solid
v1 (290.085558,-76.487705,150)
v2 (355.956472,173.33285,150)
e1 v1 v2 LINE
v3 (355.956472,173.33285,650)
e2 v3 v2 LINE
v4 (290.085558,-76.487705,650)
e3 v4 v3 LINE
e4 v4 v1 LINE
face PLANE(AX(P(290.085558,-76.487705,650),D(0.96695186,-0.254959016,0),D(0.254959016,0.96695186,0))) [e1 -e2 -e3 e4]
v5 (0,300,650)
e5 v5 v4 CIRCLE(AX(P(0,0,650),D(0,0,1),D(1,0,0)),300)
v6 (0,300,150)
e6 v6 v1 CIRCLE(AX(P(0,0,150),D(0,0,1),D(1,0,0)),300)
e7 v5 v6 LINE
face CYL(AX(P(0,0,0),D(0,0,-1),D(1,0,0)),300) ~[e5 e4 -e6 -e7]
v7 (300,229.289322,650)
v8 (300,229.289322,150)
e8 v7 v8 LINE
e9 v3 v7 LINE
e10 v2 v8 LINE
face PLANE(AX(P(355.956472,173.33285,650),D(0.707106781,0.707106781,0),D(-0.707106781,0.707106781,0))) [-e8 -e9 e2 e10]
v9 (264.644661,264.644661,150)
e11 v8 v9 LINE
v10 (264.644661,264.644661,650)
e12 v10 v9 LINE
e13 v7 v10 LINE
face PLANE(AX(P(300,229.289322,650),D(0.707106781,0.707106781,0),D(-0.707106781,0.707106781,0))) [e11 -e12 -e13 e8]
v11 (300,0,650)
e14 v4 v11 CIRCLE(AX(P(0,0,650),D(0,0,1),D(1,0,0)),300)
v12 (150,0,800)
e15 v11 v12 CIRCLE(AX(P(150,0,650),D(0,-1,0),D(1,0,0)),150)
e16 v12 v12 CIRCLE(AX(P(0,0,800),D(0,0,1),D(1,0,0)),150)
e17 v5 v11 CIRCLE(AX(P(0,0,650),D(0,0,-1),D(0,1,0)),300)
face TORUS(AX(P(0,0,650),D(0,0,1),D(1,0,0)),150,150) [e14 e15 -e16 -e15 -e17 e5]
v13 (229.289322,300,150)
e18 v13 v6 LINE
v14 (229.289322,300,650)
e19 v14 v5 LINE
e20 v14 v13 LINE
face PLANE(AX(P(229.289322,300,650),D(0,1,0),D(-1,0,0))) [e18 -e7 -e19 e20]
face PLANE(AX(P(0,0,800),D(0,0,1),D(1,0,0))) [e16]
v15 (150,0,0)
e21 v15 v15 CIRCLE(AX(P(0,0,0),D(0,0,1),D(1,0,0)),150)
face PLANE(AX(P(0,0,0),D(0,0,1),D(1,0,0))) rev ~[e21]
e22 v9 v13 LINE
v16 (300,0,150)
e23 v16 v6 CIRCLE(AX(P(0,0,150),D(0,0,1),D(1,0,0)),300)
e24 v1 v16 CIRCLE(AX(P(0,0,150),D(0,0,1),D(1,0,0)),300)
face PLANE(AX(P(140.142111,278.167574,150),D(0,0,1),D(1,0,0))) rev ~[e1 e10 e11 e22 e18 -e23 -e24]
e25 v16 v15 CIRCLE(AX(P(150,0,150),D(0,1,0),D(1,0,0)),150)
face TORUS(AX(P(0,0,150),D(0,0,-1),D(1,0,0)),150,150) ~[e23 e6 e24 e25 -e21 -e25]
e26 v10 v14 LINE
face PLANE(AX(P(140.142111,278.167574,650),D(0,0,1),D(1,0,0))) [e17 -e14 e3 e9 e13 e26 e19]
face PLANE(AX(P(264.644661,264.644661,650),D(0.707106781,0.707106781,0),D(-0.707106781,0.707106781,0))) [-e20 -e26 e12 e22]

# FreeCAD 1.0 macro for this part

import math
import FreeCAD as App
import Part
import Sketcher

V = App.Vector
Q = App.Units.Quantity


def edges_at(feature, points):
    """Names of the edges that pass closest to the given points."""
    edges = feature.Shape.Edges
    near = lambda p: min(range(len(edges)), key=lambda i: edges[i].distToShape(Part.Vertex(*p))[0])
    return sorted({f"Edge{near(p) + 1}" for p in points})

doc = App.newDocument("Part")
body = doc.addObject("PartDesign::Body", "Body")

# Sketch on XY plane
sketch1 = body.newObject("Sketcher::SketchObject", "Sketch")
sketch1.AttachmentSupport = (doc.getObject("XY_Plane"), [""])
sketch1.MapMode = "FlatFace"
sketch1.addGeometry(Part.Circle(V(0, 0, 0), V(0, 0, 1), 300), False)
sketch1.addConstraint([
    Sketcher.Constraint("Coincident", 0, 3, -1, 1),
    Sketcher.Constraint("Diameter", 0, Q("600 mm")),
])
pad1 = body.newObject("PartDesign::Pad", "Pad")
pad1.Profile = sketch1
pad1.Length = 800
doc.recompute()

fillet = body.newObject("PartDesign::Fillet", "Fillet")
fillet.Base = (pad1, edges_at(pad1, [(-300, 0, 800), (-300, 0, 0)]))
fillet.Radius = 150

# Sketch on XY plane
sketch2 = body.newObject("Sketcher::SketchObject", "Sketch001")
sketch2.AttachmentSupport = (doc.getObject("XY_Plane"), [""])
sketch2.MapMode = "FlatFace"
sketch2.AttachmentOffset = App.Placement(V(0, 0, 650), App.Rotation())
sketch2.addGeometry([
    Part.LineSegment(V(229, 300, 0), V(0, 300, 0)),  # 0
    Part.ArcOfCircle(Part.Circle(V(0, 0, 0), V(0, 0, 1), 300), math.radians(45), math.radians(90)),  # 1
    Part.ArcOfCircle(Part.Circle(V(0, 0, 0), V(0, 0, 1), 300), math.radians(-15), math.radians(45)),  # 2
    Part.LineSegment(V(290, -76, 0), V(356, 173, 0)),  # 3
    Part.LineSegment(V(356, 173, 0), V(300, 229, 0)),  # 4
    Part.LineSegment(V(300, 229, 0), V(265, 265, 0)),  # 5
    Part.LineSegment(V(265, 265, 0), V(229, 300, 0)),  # 6
], False)
sketch2.addConstraint([
    Sketcher.Constraint("Tangent", 0, 2, 1, 2),
    Sketcher.Constraint("Tangent", 1, 1, 2, 2),
    Sketcher.Constraint("Tangent", 2, 1, 3, 1),
    Sketcher.Constraint("Coincident", 3, 2, 4, 1),
    Sketcher.Constraint("Coincident", 4, 2, 5, 1),
    Sketcher.Constraint("Coincident", 5, 2, 6, 1),
    Sketcher.Constraint("Coincident", 6, 2, 0, 1),
    Sketcher.Constraint("Horizontal", 0),
    Sketcher.Constraint("Coincident", 1, 3, -1, 1),
    Sketcher.Constraint("Equal", 1, 2),
    Sketcher.Constraint("Parallel", 4, 5),
    Sketcher.Constraint("Parallel", 5, 6),
    Sketcher.Constraint("Equal", 5, 6),
    Sketcher.Constraint("Radius", 1, Q("300 mm")),
    Sketcher.Constraint("Angle", 4, Q("135 deg")),
    Sketcher.Constraint("Distance", 5, Q("50 mm")),
    Sketcher.Constraint("DistanceX", -1, 1, 4, 2, Q("300 mm")),
    Sketcher.Constraint("Distance", 4, Q("79.134402 mm")),
    Sketcher.Constraint("DistanceY", 2, 1, 1, 1, Q("288.619739 mm")),
])
pad2 = body.newObject("PartDesign::Pad", "Pad001")
pad2.Profile = sketch2
pad2.Length = 500
pad2.Reversed = True

doc.recompute()
